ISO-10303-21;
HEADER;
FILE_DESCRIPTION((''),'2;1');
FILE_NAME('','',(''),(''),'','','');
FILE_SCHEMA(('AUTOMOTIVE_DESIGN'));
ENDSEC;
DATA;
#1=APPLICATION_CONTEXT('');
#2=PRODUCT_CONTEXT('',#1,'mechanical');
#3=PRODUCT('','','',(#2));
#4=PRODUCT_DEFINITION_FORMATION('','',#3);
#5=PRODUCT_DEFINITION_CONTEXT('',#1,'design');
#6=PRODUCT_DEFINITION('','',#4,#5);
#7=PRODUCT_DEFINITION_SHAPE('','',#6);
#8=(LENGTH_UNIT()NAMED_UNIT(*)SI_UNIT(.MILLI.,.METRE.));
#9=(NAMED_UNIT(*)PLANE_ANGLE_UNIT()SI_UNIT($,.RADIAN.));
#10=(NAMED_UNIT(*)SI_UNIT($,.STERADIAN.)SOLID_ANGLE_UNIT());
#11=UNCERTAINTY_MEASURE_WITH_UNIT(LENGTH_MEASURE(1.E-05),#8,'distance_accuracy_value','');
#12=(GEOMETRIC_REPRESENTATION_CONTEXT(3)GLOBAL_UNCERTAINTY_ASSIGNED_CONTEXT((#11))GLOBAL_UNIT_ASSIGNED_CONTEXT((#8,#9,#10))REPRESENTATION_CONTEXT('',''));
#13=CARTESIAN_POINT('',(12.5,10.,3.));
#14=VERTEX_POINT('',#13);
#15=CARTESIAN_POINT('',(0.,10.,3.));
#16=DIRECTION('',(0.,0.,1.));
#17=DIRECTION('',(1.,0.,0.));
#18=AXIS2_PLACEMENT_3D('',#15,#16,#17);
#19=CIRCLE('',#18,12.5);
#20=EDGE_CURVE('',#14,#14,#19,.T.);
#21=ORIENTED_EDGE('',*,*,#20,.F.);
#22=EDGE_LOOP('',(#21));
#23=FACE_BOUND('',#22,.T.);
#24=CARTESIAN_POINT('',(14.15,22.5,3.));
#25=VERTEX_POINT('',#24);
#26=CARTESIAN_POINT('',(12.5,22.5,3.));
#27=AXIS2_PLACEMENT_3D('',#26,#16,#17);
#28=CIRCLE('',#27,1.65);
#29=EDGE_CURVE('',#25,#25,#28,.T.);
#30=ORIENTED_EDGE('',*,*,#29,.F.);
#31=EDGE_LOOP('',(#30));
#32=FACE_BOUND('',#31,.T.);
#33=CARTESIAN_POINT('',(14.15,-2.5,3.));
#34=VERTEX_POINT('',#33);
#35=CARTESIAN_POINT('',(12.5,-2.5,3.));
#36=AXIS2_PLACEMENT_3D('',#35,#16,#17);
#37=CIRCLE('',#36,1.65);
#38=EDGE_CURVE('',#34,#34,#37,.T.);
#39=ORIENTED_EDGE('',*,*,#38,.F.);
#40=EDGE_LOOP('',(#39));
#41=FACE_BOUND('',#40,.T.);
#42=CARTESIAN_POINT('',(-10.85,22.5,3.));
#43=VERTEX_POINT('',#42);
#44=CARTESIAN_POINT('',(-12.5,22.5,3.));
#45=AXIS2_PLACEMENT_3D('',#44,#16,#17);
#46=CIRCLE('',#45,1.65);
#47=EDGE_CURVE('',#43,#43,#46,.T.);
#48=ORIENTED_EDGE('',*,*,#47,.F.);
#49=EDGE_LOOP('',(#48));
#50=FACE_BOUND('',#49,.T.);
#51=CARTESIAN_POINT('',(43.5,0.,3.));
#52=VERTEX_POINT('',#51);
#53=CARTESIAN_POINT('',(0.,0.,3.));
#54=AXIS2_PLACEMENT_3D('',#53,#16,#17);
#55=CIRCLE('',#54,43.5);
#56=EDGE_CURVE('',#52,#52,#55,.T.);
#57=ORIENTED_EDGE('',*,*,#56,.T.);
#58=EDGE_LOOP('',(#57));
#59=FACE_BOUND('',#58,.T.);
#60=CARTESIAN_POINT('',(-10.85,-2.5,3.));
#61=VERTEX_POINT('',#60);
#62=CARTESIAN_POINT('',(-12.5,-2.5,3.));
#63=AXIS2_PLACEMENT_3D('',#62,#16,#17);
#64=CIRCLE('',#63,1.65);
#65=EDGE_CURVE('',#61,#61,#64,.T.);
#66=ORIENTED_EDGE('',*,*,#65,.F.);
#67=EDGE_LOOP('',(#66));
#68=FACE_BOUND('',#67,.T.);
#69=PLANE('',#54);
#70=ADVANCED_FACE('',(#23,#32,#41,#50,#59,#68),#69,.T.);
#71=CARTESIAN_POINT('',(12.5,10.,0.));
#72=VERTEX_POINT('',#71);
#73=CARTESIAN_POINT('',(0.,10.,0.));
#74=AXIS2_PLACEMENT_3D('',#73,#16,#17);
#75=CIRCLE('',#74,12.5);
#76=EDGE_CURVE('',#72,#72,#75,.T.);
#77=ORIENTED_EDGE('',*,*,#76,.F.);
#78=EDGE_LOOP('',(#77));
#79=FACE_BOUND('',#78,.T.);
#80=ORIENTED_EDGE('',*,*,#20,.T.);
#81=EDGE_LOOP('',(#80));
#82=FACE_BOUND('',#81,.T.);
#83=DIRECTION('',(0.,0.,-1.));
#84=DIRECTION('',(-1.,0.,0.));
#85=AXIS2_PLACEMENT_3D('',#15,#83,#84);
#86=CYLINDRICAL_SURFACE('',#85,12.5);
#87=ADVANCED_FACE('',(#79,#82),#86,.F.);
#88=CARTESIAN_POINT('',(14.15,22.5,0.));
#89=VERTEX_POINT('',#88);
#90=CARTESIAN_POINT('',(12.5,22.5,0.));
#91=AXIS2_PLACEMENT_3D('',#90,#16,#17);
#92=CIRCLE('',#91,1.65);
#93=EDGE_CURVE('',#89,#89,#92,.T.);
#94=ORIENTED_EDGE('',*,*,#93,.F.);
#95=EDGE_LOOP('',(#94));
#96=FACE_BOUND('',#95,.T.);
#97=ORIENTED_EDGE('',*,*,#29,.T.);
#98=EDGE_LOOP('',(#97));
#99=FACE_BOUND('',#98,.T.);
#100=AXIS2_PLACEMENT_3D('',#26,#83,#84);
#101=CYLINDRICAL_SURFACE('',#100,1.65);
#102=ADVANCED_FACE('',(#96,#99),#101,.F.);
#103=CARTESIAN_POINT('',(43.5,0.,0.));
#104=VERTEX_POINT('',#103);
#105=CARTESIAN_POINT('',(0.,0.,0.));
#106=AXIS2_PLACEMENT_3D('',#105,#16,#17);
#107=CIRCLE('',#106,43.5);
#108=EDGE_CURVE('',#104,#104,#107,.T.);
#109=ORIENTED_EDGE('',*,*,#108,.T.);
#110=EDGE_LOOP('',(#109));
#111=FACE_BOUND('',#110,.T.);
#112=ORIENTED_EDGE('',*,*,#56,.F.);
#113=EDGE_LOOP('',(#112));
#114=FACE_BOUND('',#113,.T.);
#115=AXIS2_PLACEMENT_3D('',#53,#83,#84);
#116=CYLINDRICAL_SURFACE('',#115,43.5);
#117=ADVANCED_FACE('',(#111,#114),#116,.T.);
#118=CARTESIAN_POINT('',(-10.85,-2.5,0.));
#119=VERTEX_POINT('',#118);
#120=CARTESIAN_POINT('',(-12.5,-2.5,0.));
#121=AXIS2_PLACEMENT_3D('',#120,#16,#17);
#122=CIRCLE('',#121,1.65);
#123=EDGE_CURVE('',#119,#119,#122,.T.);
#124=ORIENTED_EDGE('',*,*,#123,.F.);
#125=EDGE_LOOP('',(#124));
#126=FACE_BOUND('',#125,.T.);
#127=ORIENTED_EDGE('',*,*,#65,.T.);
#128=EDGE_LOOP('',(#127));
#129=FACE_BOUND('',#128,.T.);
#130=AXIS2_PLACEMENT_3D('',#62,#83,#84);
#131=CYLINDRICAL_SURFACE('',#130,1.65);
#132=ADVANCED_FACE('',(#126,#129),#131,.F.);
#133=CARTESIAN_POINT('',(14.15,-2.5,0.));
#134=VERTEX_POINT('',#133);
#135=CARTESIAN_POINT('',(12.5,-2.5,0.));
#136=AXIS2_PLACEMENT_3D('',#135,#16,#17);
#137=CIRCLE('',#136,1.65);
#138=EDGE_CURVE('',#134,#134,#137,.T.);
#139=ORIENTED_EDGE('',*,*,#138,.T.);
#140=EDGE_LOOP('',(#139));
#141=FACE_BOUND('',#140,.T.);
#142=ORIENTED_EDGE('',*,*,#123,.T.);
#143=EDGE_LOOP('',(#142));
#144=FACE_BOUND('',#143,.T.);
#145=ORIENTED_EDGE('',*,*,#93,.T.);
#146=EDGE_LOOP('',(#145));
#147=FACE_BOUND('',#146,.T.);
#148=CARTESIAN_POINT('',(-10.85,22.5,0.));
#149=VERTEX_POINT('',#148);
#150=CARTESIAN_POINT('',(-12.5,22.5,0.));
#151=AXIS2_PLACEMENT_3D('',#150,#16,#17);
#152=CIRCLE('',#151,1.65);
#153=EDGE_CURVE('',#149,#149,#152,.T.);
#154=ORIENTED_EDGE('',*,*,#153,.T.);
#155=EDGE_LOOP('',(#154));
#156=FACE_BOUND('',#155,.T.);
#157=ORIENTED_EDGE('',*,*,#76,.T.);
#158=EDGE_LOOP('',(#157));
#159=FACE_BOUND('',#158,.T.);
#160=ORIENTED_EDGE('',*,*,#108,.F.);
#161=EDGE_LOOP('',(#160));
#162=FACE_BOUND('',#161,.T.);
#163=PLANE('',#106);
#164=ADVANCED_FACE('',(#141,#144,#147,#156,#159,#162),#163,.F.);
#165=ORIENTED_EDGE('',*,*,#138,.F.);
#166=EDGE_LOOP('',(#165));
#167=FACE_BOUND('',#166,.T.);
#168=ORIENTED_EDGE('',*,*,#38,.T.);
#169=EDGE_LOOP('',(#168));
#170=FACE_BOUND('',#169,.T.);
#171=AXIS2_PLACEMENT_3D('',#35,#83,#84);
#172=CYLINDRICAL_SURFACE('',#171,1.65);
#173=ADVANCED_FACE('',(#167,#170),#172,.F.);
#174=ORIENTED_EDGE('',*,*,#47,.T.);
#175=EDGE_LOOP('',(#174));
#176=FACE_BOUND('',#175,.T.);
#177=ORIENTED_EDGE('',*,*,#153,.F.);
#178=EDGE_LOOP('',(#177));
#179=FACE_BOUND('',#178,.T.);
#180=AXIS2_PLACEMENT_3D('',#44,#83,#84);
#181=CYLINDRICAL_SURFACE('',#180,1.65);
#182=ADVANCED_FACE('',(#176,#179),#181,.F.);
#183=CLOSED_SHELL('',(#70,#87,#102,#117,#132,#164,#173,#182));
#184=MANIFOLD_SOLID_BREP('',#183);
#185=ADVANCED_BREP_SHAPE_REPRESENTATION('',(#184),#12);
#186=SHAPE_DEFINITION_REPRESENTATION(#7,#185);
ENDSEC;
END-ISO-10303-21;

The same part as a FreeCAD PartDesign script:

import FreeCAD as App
import Part
import Sketcher

doc = App.newDocument("Part")
body = doc.addObject("PartDesign::Body", "Body")

# Sketch on XY plane
sketch1 = doc.addObject("Sketcher::SketchObject", "Sketch")
body.addObject(sketch1)
sketch1.AttachmentSupport = (doc.XY_Plane, [""])
sketch1.MapMode = "FlatFace"
sketch1.addGeometry(Part.Circle(App.Vector(0, 0, 0), App.Vector(0, 0, 1), 43.5), False)
sketch1.addGeometry(Part.Circle(App.Vector(-12.5, -2.5, 0), App.Vector(0, 0, 1), 1.65), False)
sketch1.addGeometry(Part.Circle(App.Vector(12.5, -2.5, 0), App.Vector(0, 0, 1), 1.65), False)
sketch1.addGeometry(Part.Circle(App.Vector(-12.5, 22.5, 0), App.Vector(0, 0, 1), 1.65), False)
sketch1.addGeometry(Part.Circle(App.Vector(0, 10, 0), App.Vector(0, 0, 1), 12.5), False)
sketch1.addGeometry(Part.Circle(App.Vector(12.5, 22.5, 0), App.Vector(0, 0, 1), 1.65), False)
sketch1.addConstraint(Sketcher.Constraint("Coincident", 0, 3, -1, 1))
sketch1.addConstraint(Sketcher.Constraint("Equal", 1, 2))
sketch1.addConstraint(Sketcher.Constraint("Equal", 2, 3))
sketch1.addConstraint(Sketcher.Constraint("Equal", 3, 5))
sketch1.addConstraint(Sketcher.Constraint("Symmetric", 1, 3, 2, 3, -2))
sketch1.addConstraint(Sketcher.Constraint("Symmetric", 3, 3, 5, 3, -2))
sketch1.addConstraint(Sketcher.Constraint("PointOnObject", 4, 3, -2))
sketch1.addConstraint(Sketcher.Constraint("Vertical", 1, 3, 3, 3))
sketch1.addConstraint(Sketcher.Constraint("Diameter", 0, 87.0))
sketch1.addConstraint(Sketcher.Constraint("Diameter", 4, 25.0))
sketch1.addConstraint(Sketcher.Constraint("Diameter", 1, 3.3))
sketch1.addConstraint(Sketcher.Constraint("DistanceY", -1, 1, 4, 3, 10.0))
sketch1.addConstraint(Sketcher.Constraint("DistanceX", 1, 3, 2, 3, 25.0))
sketch1.addConstraint(Sketcher.Constraint("DistanceY", 1, 3, 3, 3, 25.0))
sketch1.addConstraint(Sketcher.Constraint("DistanceY", 1, 3, -1, 1, 2.5))
pad1 = doc.addObject("PartDesign::Pad", "Pad")
body.addObject(pad1)
pad1.Profile = sketch1
pad1.Length = 3

doc.recompute()
